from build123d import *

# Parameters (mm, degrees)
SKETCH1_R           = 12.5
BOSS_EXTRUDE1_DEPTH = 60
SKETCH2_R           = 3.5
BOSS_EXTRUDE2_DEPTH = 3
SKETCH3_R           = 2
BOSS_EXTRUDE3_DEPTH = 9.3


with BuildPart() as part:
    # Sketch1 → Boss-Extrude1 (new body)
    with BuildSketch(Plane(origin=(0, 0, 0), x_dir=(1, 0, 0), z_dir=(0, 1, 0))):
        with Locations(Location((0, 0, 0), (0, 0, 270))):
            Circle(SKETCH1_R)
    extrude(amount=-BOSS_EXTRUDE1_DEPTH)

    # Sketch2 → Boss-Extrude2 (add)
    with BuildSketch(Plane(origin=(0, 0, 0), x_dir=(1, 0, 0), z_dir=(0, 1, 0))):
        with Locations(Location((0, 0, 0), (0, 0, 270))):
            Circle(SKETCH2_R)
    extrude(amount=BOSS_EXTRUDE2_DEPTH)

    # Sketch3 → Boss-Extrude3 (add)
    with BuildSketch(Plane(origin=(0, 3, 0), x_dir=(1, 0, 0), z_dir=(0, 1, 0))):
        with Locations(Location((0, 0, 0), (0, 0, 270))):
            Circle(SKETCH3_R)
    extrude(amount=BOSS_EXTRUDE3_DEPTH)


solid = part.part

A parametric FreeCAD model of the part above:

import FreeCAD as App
import Part
import Sketcher

doc = App.newDocument("Part")
body = doc.addObject("PartDesign::Body", "Body")

# Sketch on XZ plane
sketch1 = doc.addObject("Sketcher::SketchObject", "Sketch")
body.addObject(sketch1)
sketch1.AttachmentSupport = (doc.XZ_Plane, [""])
sketch1.MapMode = "FlatFace"
sketch1.addGeometry(Part.Circle(App.Vector(0, 0, 0), App.Vector(0, 0, 1), 12), False)
sketch1.addConstraint(Sketcher.Constraint("Coincident", 0, 3, -1, 1))
sketch1.addConstraint(Sketcher.Constraint("Diameter", 0, 25.0))
pad1 = doc.addObject("PartDesign::Pad", "Pad")
body.addObject(pad1)
pad1.Profile = sketch1
pad1.Length = 60

# Sketch on XZ plane
sketch2 = doc.addObject("Sketcher::SketchObject", "Sketch001")
body.addObject(sketch2)
sketch2.AttachmentSupport = (doc.XZ_Plane, [""])
sketch2.MapMode = "FlatFace"
sketch2.addGeometry(Part.Circle(App.Vector(0, 0, 0), App.Vector(0, 0, 1), 3.5), False)
sketch2.addConstraint(Sketcher.Constraint("Coincident", 0, 3, -1, 1))
sketch2.addConstraint(Sketcher.Constraint("Diameter", 0, 7.0))
pad2 = doc.addObject("PartDesign::Pad", "Pad001")
body.addObject(pad2)
pad2.Profile = sketch2
pad2.Length = 3
pad2.Reversed = True

# Sketch on XZ plane
sketch3 = doc.addObject("Sketcher::SketchObject", "Sketch002")
body.addObject(sketch3)
sketch3.AttachmentSupport = (doc.XZ_Plane, [""])
sketch3.MapMode = "FlatFace"
sketch3.AttachmentOffset = App.Placement(App.Vector(0, 0, -3), App.Rotation())
sketch3.addGeometry(Part.Circle(App.Vector(0, 0, 0), App.Vector(0, 0, 1), 2), False)
sketch3.addConstraint(Sketcher.Constraint("Coincident", 0, 3, -1, 1))
sketch3.addConstraint(Sketcher.Constraint("Diameter", 0, 4.0))
pad3 = doc.addObject("PartDesign::Pad", "Pad002")
body.addObject(pad3)
pad3.Profile = sketch3
pad3.Length = 9.3
pad3.Reversed = True

doc.recompute()
